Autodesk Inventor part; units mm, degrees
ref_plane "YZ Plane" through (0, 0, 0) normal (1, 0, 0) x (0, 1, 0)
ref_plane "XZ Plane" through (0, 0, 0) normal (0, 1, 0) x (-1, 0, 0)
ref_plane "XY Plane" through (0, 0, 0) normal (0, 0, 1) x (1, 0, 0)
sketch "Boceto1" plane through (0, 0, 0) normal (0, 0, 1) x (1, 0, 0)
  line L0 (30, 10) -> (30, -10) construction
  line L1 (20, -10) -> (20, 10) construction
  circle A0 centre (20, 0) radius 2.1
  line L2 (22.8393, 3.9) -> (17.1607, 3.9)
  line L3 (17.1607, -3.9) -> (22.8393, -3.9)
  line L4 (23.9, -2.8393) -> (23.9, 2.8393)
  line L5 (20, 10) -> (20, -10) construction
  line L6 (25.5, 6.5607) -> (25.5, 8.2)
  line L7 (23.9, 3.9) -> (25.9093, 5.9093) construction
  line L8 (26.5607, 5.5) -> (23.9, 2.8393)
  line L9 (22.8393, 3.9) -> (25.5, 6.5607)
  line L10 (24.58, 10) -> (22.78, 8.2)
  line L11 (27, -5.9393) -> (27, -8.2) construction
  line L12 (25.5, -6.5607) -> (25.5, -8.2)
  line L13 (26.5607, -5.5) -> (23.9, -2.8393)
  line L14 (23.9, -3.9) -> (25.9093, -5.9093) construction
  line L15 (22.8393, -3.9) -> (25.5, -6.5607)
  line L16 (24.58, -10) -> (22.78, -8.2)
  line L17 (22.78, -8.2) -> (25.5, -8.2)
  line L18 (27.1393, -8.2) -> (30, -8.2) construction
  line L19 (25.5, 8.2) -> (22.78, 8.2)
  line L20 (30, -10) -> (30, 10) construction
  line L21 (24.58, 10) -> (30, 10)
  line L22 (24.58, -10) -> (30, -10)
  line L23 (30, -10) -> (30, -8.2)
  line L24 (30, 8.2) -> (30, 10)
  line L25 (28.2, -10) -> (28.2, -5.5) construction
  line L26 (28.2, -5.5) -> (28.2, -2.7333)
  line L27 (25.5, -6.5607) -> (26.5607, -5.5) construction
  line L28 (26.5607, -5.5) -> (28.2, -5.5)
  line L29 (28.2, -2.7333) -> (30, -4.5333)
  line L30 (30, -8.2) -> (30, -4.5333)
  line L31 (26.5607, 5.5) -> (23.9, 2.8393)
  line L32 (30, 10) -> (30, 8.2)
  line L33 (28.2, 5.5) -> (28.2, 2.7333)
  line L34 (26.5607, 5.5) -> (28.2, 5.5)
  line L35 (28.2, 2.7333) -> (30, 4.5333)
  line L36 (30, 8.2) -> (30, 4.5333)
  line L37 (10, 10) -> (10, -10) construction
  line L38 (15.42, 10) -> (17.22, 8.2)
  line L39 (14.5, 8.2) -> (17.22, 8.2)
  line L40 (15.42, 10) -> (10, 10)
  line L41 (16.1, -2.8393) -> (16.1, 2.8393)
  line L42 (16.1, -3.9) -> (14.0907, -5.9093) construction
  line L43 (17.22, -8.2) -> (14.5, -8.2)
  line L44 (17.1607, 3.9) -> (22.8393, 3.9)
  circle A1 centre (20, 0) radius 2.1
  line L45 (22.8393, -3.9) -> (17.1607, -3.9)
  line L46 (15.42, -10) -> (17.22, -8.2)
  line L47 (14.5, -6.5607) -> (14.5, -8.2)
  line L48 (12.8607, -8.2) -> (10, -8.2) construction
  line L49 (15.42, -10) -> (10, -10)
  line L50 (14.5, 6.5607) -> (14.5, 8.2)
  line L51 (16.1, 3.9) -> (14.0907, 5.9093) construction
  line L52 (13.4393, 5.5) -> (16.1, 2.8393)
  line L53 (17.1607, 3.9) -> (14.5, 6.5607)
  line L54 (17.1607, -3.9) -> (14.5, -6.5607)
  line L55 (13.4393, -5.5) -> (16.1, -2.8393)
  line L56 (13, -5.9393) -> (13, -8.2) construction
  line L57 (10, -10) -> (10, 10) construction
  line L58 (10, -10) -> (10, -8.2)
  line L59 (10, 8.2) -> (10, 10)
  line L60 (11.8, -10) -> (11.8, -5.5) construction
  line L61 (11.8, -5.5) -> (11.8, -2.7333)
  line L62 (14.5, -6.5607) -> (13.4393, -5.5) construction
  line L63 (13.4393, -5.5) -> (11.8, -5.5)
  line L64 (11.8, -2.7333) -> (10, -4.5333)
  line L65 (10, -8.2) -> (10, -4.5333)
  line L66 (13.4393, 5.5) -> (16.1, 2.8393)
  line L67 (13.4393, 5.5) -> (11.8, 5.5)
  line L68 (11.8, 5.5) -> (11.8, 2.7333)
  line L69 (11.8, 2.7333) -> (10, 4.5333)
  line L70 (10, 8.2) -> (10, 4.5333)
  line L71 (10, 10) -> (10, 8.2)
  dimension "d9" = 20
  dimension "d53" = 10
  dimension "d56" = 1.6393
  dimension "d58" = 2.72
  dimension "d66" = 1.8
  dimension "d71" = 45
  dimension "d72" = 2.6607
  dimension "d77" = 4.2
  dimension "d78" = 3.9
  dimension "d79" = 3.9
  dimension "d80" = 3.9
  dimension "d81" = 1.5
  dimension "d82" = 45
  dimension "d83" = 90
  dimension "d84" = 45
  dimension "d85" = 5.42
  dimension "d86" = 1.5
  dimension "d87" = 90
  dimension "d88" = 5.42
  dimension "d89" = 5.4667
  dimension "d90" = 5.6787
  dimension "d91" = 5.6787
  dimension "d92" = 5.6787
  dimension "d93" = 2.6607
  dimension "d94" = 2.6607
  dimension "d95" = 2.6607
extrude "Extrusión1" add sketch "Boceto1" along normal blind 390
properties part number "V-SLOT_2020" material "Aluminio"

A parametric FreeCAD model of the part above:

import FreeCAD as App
import Part
import Sketcher
Q = App.Units.Quantity

doc = App.newDocument("Part")
params = doc.addObject("Spreadsheet::Sheet", "Params")
for row, (alias, value) in enumerate([
    ("sketch1_diameter", "4.2 mm"),
    ("sketch1_width", "2.72 mm"),
    ("sketch1_width2", "5.42 mm"),
    ("pad1_length", "390 mm"),
], start=1):
    params.set(f"A{row}", alias)
    params.set(f"B{row}", "=" + value)
    params.setAlias(f"B{row}", alias)

body = doc.addObject("PartDesign::Body", "Body")

sketch1 = body.newObject("Sketcher::SketchObject", "Sketch")
sketch1.AttachmentSupport = (doc.getObject("XY_Plane"), [""])
sketch1.MapMode = "FlatFace"
sketch1.addGeometry(Part.LineSegment(App.Vector(25.5, 6.6, 0), App.Vector(22.8, 3.9, 0)), False)
sketch1.addGeometry(Part.LineSegment(App.Vector(22.8, 3.9, 0), App.Vector(17.2, 3.9, 0)), False)
sketch1.addGeometry(Part.LineSegment(App.Vector(17.2, 3.9, 0), App.Vector(14.5, 6.6, 0)), False)
sketch1.addGeometry(Part.LineSegment(App.Vector(14.5, 6.6, 0), App.Vector(14.5, 8.2, 0)), False)
sketch1.addGeometry(Part.LineSegment(App.Vector(14.5, 8.2, 0), App.Vector(17.2, 8.2, 0)), False)
sketch1.addGeometry(Part.LineSegment(App.Vector(17.2, 8.2, 0), App.Vector(15.4, 10, 0)), False)
sketch1.addGeometry(Part.LineSegment(App.Vector(15.4, 10, 0), App.Vector(10, 10, 0)), False)
sketch1.addGeometry(Part.LineSegment(App.Vector(10, 10, 0), App.Vector(10, 4.5, 0)), False)
sketch1.addGeometry(Part.LineSegment(App.Vector(10, 4.5, 0), App.Vector(11.8, 2.7, 0)), False)
sketch1.addGeometry(Part.LineSegment(App.Vector(11.8, 2.7, 0), App.Vector(11.8, 5.5, 0)), False)
sketch1.addGeometry(Part.LineSegment(App.Vector(11.8, 5.5, 0), App.Vector(13.4, 5.5, 0)), False)
sketch1.addGeometry(Part.LineSegment(App.Vector(13.4, 5.5, 0), App.Vector(16.1, 2.8, 0)), False)
sketch1.addGeometry(Part.LineSegment(App.Vector(16.1, 2.8, 0), App.Vector(16.1, -2.8, 0)), False)
sketch1.addGeometry(Part.LineSegment(App.Vector(16.1, -2.8, 0), App.Vector(13.4, -5.5, 0)), False)
sketch1.addGeometry(Part.LineSegment(App.Vector(13.4, -5.5, 0), App.Vector(11.8, -5.5, 0)), False)
sketch1.addGeometry(Part.LineSegment(App.Vector(11.8, -5.5, 0), App.Vector(11.8, -2.7, 0)), False)
sketch1.addGeometry(Part.LineSegment(App.Vector(11.8, -2.7, 0), App.Vector(10, -4.5, 0)), False)
sketch1.addGeometry(Part.LineSegment(App.Vector(10, -4.5, 0), App.Vector(10, -10, 0)), False)
sketch1.addGeometry(Part.LineSegment(App.Vector(10, -10, 0), App.Vector(15.4, -10, 0)), False)
sketch1.addGeometry(Part.LineSegment(App.Vector(15.4, -10, 0), App.Vector(17.2, -8.2, 0)), False)
sketch1.addGeometry(Part.LineSegment(App.Vector(17.2, -8.2, 0), App.Vector(14.5, -8.2, 0)), False)
sketch1.addGeometry(Part.LineSegment(App.Vector(14.5, -8.2, 0), App.Vector(14.5, -6.6, 0)), False)
sketch1.addGeometry(Part.LineSegment(App.Vector(14.5, -6.6, 0), App.Vector(17.2, -3.9, 0)), False)
sketch1.addGeometry(Part.LineSegment(App.Vector(17.2, -3.9, 0), App.Vector(22.8, -3.9, 0)), False)
sketch1.addGeometry(Part.LineSegment(App.Vector(22.8, -3.9, 0), App.Vector(25.5, -6.6, 0)), False)
sketch1.addGeometry(Part.LineSegment(App.Vector(25.5, -6.6, 0), App.Vector(25.5, -8.2, 0)), False)
sketch1.addGeometry(Part.LineSegment(App.Vector(25.5, -8.2, 0), App.Vector(22.8, -8.2, 0)), False)
sketch1.addGeometry(Part.LineSegment(App.Vector(22.8, -8.2, 0), App.Vector(24.6, -10, 0)), False)
sketch1.addGeometry(Part.LineSegment(App.Vector(24.6, -10, 0), App.Vector(30, -10, 0)), False)
sketch1.addGeometry(Part.LineSegment(App.Vector(30, -10, 0), App.Vector(30, -4.5, 0)), False)
sketch1.addGeometry(Part.LineSegment(App.Vector(30, -4.5, 0), App.Vector(28.2, -2.7, 0)), False)
sketch1.addGeometry(Part.LineSegment(App.Vector(28.2, -2.7, 0), App.Vector(28.2, -5.5, 0)), False)
sketch1.addGeometry(Part.LineSegment(App.Vector(28.2, -5.5, 0), App.Vector(26.6, -5.5, 0)), False)
sketch1.addGeometry(Part.LineSegment(App.Vector(26.6, -5.5, 0), App.Vector(23.9, -2.8, 0)), False)
sketch1.addGeometry(Part.LineSegment(App.Vector(23.9, -2.8, 0), App.Vector(23.9, 2.8, 0)), False)
sketch1.addGeometry(Part.LineSegment(App.Vector(23.9, 2.8, 0), App.Vector(26.6, 5.5, 0)), False)
sketch1.addGeometry(Part.LineSegment(App.Vector(26.6, 5.5, 0), App.Vector(28.2, 5.5, 0)), False)
sketch1.addGeometry(Part.LineSegment(App.Vector(28.2, 5.5, 0), App.Vector(28.2, 2.7, 0)), False)
sketch1.addGeometry(Part.LineSegment(App.Vector(28.2, 2.7, 0), App.Vector(30, 4.5, 0)), False)
sketch1.addGeometry(Part.LineSegment(App.Vector(30, 4.5, 0), App.Vector(30, 10, 0)), False)
sketch1.addGeometry(Part.LineSegment(App.Vector(30, 10, 0), App.Vector(24.6, 10, 0)), False)
sketch1.addGeometry(Part.LineSegment(App.Vector(24.6, 10, 0), App.Vector(22.8, 8.2, 0)), False)
sketch1.addGeometry(Part.LineSegment(App.Vector(22.8, 8.2, 0), App.Vector(25.5, 8.2, 0)), False)
sketch1.addGeometry(Part.LineSegment(App.Vector(25.5, 8.2, 0), App.Vector(25.5, 6.6, 0)), False)
sketch1.addGeometry(Part.Circle(App.Vector(20, 0, 0), App.Vector(0, 0, 1), 2.1), False)
sketch1.addConstraint(Sketcher.Constraint("Coincident", 0, 2, 1, 1))
sketch1.addConstraint(Sketcher.Constraint("Coincident", 1, 2, 2, 1))
sketch1.addConstraint(Sketcher.Constraint("Coincident", 2, 2, 3, 1))
sketch1.addConstraint(Sketcher.Constraint("Coincident", 3, 2, 4, 1))
sketch1.addConstraint(Sketcher.Constraint("Coincident", 4, 2, 5, 1))
sketch1.addConstraint(Sketcher.Constraint("Coincident", 5, 2, 6, 1))
sketch1.addConstraint(Sketcher.Constraint("Coincident", 6, 2, 7, 1))
sketch1.addConstraint(Sketcher.Constraint("Coincident", 7, 2, 8, 1))
sketch1.addConstraint(Sketcher.Constraint("Coincident", 8, 2, 9, 1))
sketch1.addConstraint(Sketcher.Constraint("Coincident", 9, 2, 10, 1))
sketch1.addConstraint(Sketcher.Constraint("Coincident", 10, 2, 11, 1))
sketch1.addConstraint(Sketcher.Constraint("Coincident", 11, 2, 12, 1))
sketch1.addConstraint(Sketcher.Constraint("Coincident", 12, 2, 13, 1))
sketch1.addConstraint(Sketcher.Constraint("Coincident", 13, 2, 14, 1))
sketch1.addConstraint(Sketcher.Constraint("Coincident", 14, 2, 15, 1))
sketch1.addConstraint(Sketcher.Constraint("Coincident", 15, 2, 16, 1))
sketch1.addConstraint(Sketcher.Constraint("Coincident", 16, 2, 17, 1))
sketch1.addConstraint(Sketcher.Constraint("Coincident", 17, 2, 18, 1))
sketch1.addConstraint(Sketcher.Constraint("Coincident", 18, 2, 19, 1))
sketch1.addConstraint(Sketcher.Constraint("Coincident", 19, 2, 20, 1))
sketch1.addConstraint(Sketcher.Constraint("Coincident", 20, 2, 21, 1))
sketch1.addConstraint(Sketcher.Constraint("Coincident", 21, 2, 22, 1))
sketch1.addConstraint(Sketcher.Constraint("Coincident", 22, 2, 23, 1))
sketch1.addConstraint(Sketcher.Constraint("Coincident", 23, 2, 24, 1))
sketch1.addConstraint(Sketcher.Constraint("Coincident", 24, 2, 25, 1))
sketch1.addConstraint(Sketcher.Constraint("Coincident", 25, 2, 26, 1))
sketch1.addConstraint(Sketcher.Constraint("Coincident", 26, 2, 27, 1))
sketch1.addConstraint(Sketcher.Constraint("Coincident", 27, 2, 28, 1))
sketch1.addConstraint(Sketcher.Constraint("Coincident", 28, 2, 29, 1))
sketch1.addConstraint(Sketcher.Constraint("Coincident", 29, 2, 30, 1))
sketch1.addConstraint(Sketcher.Constraint("Coincident", 30, 2, 31, 1))
sketch1.addConstraint(Sketcher.Constraint("Coincident", 31, 2, 32, 1))
sketch1.addConstraint(Sketcher.Constraint("Coincident", 32, 2, 33, 1))
sketch1.addConstraint(Sketcher.Constraint("Coincident", 33, 2, 34, 1))
sketch1.addConstraint(Sketcher.Constraint("Coincident", 34, 2, 35, 1))
sketch1.addConstraint(Sketcher.Constraint("Coincident", 35, 2, 36, 1))
sketch1.addConstraint(Sketcher.Constraint("Coincident", 36, 2, 37, 1))
sketch1.addConstraint(Sketcher.Constraint("Coincident", 37, 2, 38, 1))
sketch1.addConstraint(Sketcher.Constraint("Coincident", 38, 2, 39, 1))
sketch1.addConstraint(Sketcher.Constraint("Coincident", 39, 2, 40, 1))
sketch1.addConstraint(Sketcher.Constraint("Coincident", 40, 2, 41, 1))
sketch1.addConstraint(Sketcher.Constraint("Coincident", 41, 2, 42, 1))
sketch1.addConstraint(Sketcher.Constraint("Coincident", 42, 2, 43, 1))
sketch1.addConstraint(Sketcher.Constraint("Coincident", 43, 2, 0, 1))
sketch1.addConstraint(Sketcher.Constraint("Horizontal", 1))
sketch1.addConstraint(Sketcher.Constraint("Vertical", 3))
sketch1.addConstraint(Sketcher.Constraint("Horizontal", 4))
sketch1.addConstraint(Sketcher.Constraint("Horizontal", 6))
sketch1.addConstraint(Sketcher.Constraint("Vertical", 7))
sketch1.addConstraint(Sketcher.Constraint("Vertical", 9))
sketch1.addConstraint(Sketcher.Constraint("Horizontal", 10))
sketch1.addConstraint(Sketcher.Constraint("Vertical", 12))
sketch1.addConstraint(Sketcher.Constraint("Horizontal", 14))
sketch1.addConstraint(Sketcher.Constraint("Vertical", 15))
sketch1.addConstraint(Sketcher.Constraint("Vertical", 17))
sketch1.addConstraint(Sketcher.Constraint("Horizontal", 18))
sketch1.addConstraint(Sketcher.Constraint("Horizontal", 20))
sketch1.addConstraint(Sketcher.Constraint("Vertical", 21))
sketch1.addConstraint(Sketcher.Constraint("Horizontal", 23))
sketch1.addConstraint(Sketcher.Constraint("Vertical", 25))
sketch1.addConstraint(Sketcher.Constraint("Horizontal", 26))
sketch1.addConstraint(Sketcher.Constraint("Horizontal", 28))
sketch1.addConstraint(Sketcher.Constraint("Vertical", 29))
sketch1.addConstraint(Sketcher.Constraint("Vertical", 31))
sketch1.addConstraint(Sketcher.Constraint("Horizontal", 32))
sketch1.addConstraint(Sketcher.Constraint("Vertical", 34))
sketch1.addConstraint(Sketcher.Constraint("Horizontal", 36))
sketch1.addConstraint(Sketcher.Constraint("Vertical", 37))
sketch1.addConstraint(Sketcher.Constraint("Vertical", 39))
sketch1.addConstraint(Sketcher.Constraint("Horizontal", 40))
sketch1.addConstraint(Sketcher.Constraint("Horizontal", 42))
sketch1.addConstraint(Sketcher.Constraint("Vertical", 43))
sketch1.addConstraint(Sketcher.Constraint("Symmetric", 10, 2, 13, 2, -1))
sketch1.addConstraint(Sketcher.Constraint("Symmetric", 8, 2, 15, 2, -1))
sketch1.addConstraint(Sketcher.Constraint("Symmetric", 7, 2, 16, 2, -1))
sketch1.addConstraint(Sketcher.Constraint("Symmetric", 5, 2, 18, 2, -1))
sketch1.addConstraint(Sketcher.Constraint("Symmetric", 4, 2, 19, 2, -1))
sketch1.addConstraint(Sketcher.Constraint("Symmetric", 2, 2, 21, 2, -1))
sketch1.addConstraint(Sketcher.Constraint("Symmetric", 1, 2, 22, 2, -1))
sketch1.addConstraint(Sketcher.Constraint("Symmetric", 32, 2, 35, 2, -1))
sketch1.addConstraint(Sketcher.Constraint("Symmetric", 30, 2, 37, 2, -1))
sketch1.addConstraint(Sketcher.Constraint("Symmetric", 29, 2, 38, 2, -1))
sketch1.addConstraint(Sketcher.Constraint("Symmetric", 27, 2, 40, 2, -1))
sketch1.addConstraint(Sketcher.Constraint("Symmetric", 26, 2, 41, 2, -1))
sketch1.addConstraint(Sketcher.Constraint("Symmetric", 24, 2, 43, 2, -1))
sketch1.addConstraint(Sketcher.Constraint("PointOnObject", 44, 3, -1))
sketch1.addConstraint(Sketcher.Constraint("Perpendicular", 0, 2))
sketch1.addConstraint(Sketcher.Constraint("Parallel", 2, 5))
sketch1.addConstraint(Sketcher.Constraint("Parallel", 5, 8))
sketch1.addConstraint(Sketcher.Constraint("Parallel", 8, 11))
sketch1.addConstraint(Sketcher.Constraint("Perpendicular", 11, 13))
sketch1.addConstraint(Sketcher.Constraint("Parallel", 13, 16))
sketch1.addConstraint(Sketcher.Constraint("Perpendicular", 22, 24))
sketch1.addConstraint(Sketcher.Constraint("Parallel", 24, 27))
sketch1.addConstraint(Sketcher.Constraint("Parallel", 27, 30))
sketch1.addConstraint(Sketcher.Constraint("Parallel", 30, 33))
sketch1.addConstraint(Sketcher.Constraint("Perpendicular", 33, 35))
sketch1.addConstraint(Sketcher.Constraint("Horizontal", 21, 2, 24, 2))
sketch1.addConstraint(Sketcher.Constraint("Horizontal", 20, 2, 25, 2))
sketch1.addConstraint(Sketcher.Constraint("Horizontal", 18, 2, 27, 2))
sketch1.addConstraint(Sketcher.Constraint("Horizontal", 16, 2, 29, 2))
sketch1.addConstraint(Sketcher.Constraint("Horizontal", 15, 2, 30, 2))
sketch1.addConstraint(Sketcher.Constraint("Horizontal", 14, 2, 31, 2))
sketch1.addConstraint(Sketcher.Constraint("Horizontal", 12, 2, 33, 2))
sketch1.addConstraint(Sketcher.Constraint("Equal", 20, 26))
sketch1.addConstraint(Sketcher.Constraint("Equal", 18, 28))
sketch1.addConstraint(Sketcher.Constraint("Equal", 14, 32))
sketch1.addConstraint(Sketcher.Constraint("Equal", 36, 3))
sketch1.addConstraint(Sketcher.Constraint("Equal", 23, 12))
sketch1.addConstraint(Sketcher.Constraint("Equal", 5, 8))
sketch1.addConstraint(Sketcher.Constraint("Equal", 2, 11))
sketch1.addConstraint(Sketcher.Constraint("Diameter", 44, Q("4.2 mm")))
sketch1.addConstraint(Sketcher.Constraint("DistanceX", -1, 1, 44, 3, Q("20 mm")))
sketch1.addConstraint(Sketcher.Constraint("DistanceY", -1, 1, 5, 2, Q("10 mm")))
sketch1.addConstraint(Sketcher.Constraint("DistanceX", -1, 1, 6, 2, Q("10 mm")))
sketch1.addConstraint(Sketcher.Constraint("DistanceX", 4, 1, 4, 2, Q("2.72 mm")))
sketch1.addConstraint(Sketcher.Constraint("DistanceX", 6, 2, 6, 1, Q("5.42 mm")))
sketch1.addConstraint(Sketcher.Constraint("DistanceY", -1, 1, 0, 2, Q("3.9 mm")))
sketch1.addConstraint(Sketcher.Constraint("DistanceY", 3, 2, 5, 2, Q("1.8 mm")))
sketch1.addConstraint(Sketcher.Constraint("DistanceX", 44, 3, 33, 2, Q("3.9 mm")))
sketch1.addConstraint(Sketcher.Constraint("DistanceX", 1, 2, 1, 1, Q("5.6786 mm")))
sketch1.addConstraint(Sketcher.Constraint("DistanceY", 7, 2, 7, 1, Q("5.4667 mm")))
sketch1.setExpression("Constraints[111]", "Params.sketch1_diameter")
sketch1.setExpression("Constraints[115]", "Params.sketch1_width")
sketch1.setExpression("Constraints[116]", "Params.sketch1_width2")
pad1 = body.newObject("PartDesign::Pad", "Pad")
pad1.Profile = sketch1
pad1.setExpression("Length", "Params.pad1_length")

doc.recompute()
